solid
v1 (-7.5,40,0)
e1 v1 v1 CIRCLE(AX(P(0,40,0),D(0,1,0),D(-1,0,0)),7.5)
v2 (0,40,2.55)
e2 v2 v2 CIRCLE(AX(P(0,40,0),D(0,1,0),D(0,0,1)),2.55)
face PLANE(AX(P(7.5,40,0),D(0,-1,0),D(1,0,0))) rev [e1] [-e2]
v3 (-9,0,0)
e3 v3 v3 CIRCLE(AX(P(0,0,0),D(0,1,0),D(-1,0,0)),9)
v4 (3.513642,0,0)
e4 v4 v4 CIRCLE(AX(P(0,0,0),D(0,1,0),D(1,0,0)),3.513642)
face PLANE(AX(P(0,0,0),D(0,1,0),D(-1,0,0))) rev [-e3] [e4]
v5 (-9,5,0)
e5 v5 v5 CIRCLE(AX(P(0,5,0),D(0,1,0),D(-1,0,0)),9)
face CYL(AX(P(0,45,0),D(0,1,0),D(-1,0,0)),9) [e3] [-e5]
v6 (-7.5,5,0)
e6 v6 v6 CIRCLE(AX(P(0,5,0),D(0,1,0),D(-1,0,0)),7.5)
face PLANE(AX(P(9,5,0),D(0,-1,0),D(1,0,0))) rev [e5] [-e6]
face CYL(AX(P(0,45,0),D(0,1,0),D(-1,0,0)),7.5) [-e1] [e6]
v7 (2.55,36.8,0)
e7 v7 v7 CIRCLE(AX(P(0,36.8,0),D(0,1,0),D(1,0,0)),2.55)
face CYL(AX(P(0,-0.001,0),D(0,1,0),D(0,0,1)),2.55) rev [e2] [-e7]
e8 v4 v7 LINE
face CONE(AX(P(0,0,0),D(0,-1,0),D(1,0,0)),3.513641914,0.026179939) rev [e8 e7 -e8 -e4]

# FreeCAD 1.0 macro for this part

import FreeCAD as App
import Part
import Sketcher
from FreeCAD import Vector
Q = App.Units.Quantity


def add_polygon(sketch, points):
    """Adds a closed chain of lines whose ends are joined by coincident constraints."""
    first, n = sketch.GeometryCount, len(points)
    for a, b in zip(points, points[1:] + points[:1]):
        sketch.addGeometry(Part.LineSegment(App.Vector(*a, 0), App.Vector(*b, 0)), False)
    for i in range(n):
        sketch.addConstraint(Sketcher.Constraint("Coincident", first + i, 2, first + (i + 1) % n, 1))

doc = App.newDocument("Part")
body = doc.addObject("PartDesign::Body", "Body")

# Sketch on XY plane
sketch1 = body.newObject("Sketcher::SketchObject", "Sketch")
sketch1.AttachmentSupport = (doc.getObject("XY_Plane"), [""])
sketch1.MapMode = "FlatFace"
add_polygon(sketch1, [(0, 0), (9, 0), (9, 5), (7.5, 5), (7.5, 40), (0, 40)])  # lines 0-5
sketch1.addConstraint(Sketcher.Constraint("Horizontal", 0))
sketch1.addConstraint(Sketcher.Constraint("Vertical", 1))
sketch1.addConstraint(Sketcher.Constraint("Horizontal", 2))
sketch1.addConstraint(Sketcher.Constraint("Vertical", 3))
sketch1.addConstraint(Sketcher.Constraint("Horizontal", 4))
sketch1.addConstraint(Sketcher.Constraint("Vertical", 5))
sketch1.addConstraint(Sketcher.Constraint("Coincident", 5, 2, -1, 1))
sketch1.addConstraint(Sketcher.Constraint("DistanceX", 0, 1, 0, 2, 9.0))
sketch1.addConstraint(Sketcher.Constraint("DistanceY", 1, 1, 1, 2, 5.0))
sketch1.addConstraint(Sketcher.Constraint("DistanceY", 3, 1, 3, 2, 35.0))
sketch1.addConstraint(Sketcher.Constraint("DistanceX", 2, 2, 2, 1, 1.5))
revolution = body.newObject("PartDesign::Revolution", "Revolution")
revolution.Profile = sketch1
revolution.ReferenceAxis = (sketch1, ["V_Axis"])
revolution.Angle = 360

# Sketch on XZ plane
sketch2 = body.newObject("Sketcher::SketchObject", "Sketch001")
sketch2.AttachmentSupport = (doc.getObject("XZ_Plane"), [""])
sketch2.MapMode = "FlatFace"
sketch2.AttachmentOffset = App.Placement(Vector(0, 0, -40), App.Rotation())
sketch2.addGeometry(Part.Circle(Vector(0, 0, 0), Vector(0, 0, 1), 2.55), False)
sketch2.addConstraint(Sketcher.Constraint("Coincident", 0, 3, -1, 1))
sketch2.addConstraint(Sketcher.Constraint("Diameter", 0, 5.1))
pocket1 = body.newObject("PartDesign::Pocket", "Pocket")
pocket1.Profile = sketch2
pocket1.Type = "UpToFirst"
pocket1.Reversed = True

# Sketch on XY plane
sketch3 = body.newObject("Sketcher::SketchObject", "Sketch002")
sketch3.AttachmentSupport = (doc.getObject("XY_Plane"), [""])
sketch3.MapMode = "FlatFace"
add_polygon(sketch3, [(3.513642, 0), (2.55, 36.8), (2.55, 0)])  # lines 0-2
sketch3.addConstraint(Sketcher.Constraint("Vertical", 1))
sketch3.addConstraint(Sketcher.Constraint("Horizontal", 2))
sketch3.addConstraint(Sketcher.Constraint("PointOnObject", 1, 2, -1))
sketch3.addConstraint(Sketcher.Constraint("DistanceY", 1, 2, 1, 1, 36.8))
sketch3.addConstraint(Sketcher.Constraint("Angle", 0, Q("91.5 deg")))
sketch3.addConstraint(Sketcher.Constraint("DistanceX", -1, 1, 0, 2, 2.55))

# Sketch on XZ plane
sketch4 = body.newObject("Sketcher::SketchObject", "Sketch003")
sketch4.AttachmentSupport = (doc.getObject("XZ_Plane"), [""])
sketch4.MapMode = "FlatFace"
sketch4.AttachmentOffset = App.Placement(Vector(0, 0, -40), App.Rotation())
sketch4.addGeometry(Part.Circle(Vector(0, 0, 0), Vector(0, 0, 1), 2.55), False)
sketch4.addConstraint(Sketcher.Constraint("Coincident", 0, 3, -1, 1))
sketch4.addConstraint(Sketcher.Constraint("Diameter", 0, 5.1))
doc.recompute()

subtractivepipe = body.newObject("PartDesign::SubtractivePipe", "SubtractivePipe")
subtractivepipe.Profile = sketch3
subtractivepipe.Spine = (sketch4, ["Edge1"])

doc.recompute()
